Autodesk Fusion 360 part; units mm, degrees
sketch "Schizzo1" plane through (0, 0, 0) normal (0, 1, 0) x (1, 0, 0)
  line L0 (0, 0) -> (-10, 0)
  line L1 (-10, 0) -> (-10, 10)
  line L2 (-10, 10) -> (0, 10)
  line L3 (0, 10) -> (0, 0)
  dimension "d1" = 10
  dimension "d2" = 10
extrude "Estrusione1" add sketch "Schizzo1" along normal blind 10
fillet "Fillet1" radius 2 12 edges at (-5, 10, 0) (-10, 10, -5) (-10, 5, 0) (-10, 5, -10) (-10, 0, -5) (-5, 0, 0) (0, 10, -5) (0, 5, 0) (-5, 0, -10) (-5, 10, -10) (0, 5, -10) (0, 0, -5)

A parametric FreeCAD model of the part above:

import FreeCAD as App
import Part
import Sketcher
from FreeCAD import Vector


def add_polygon(sketch, points):
    """Adds a closed chain of lines whose ends are joined by coincident constraints."""
    first, n = sketch.GeometryCount, len(points)
    for a, b in zip(points, points[1:] + points[:1]):
        sketch.addGeometry(Part.LineSegment(App.Vector(*a, 0), App.Vector(*b, 0)), False)
    for i in range(n):
        sketch.addConstraint(Sketcher.Constraint("Coincident", first + i, 2, first + (i + 1) % n, 1))

doc = App.newDocument("Part")
params = doc.addObject("Spreadsheet::Sheet", "Params")
for row, (alias, value) in enumerate([
    ("sketch1_width", "10 mm"),
    ("pad1_length", "10 mm"),
    ("fillet_radius", "2 mm"),
], start=1):
    params.set(f"A{row}", alias)
    params.set(f"B{row}", "=" + value)
    params.setAlias(f"B{row}", alias)

body = doc.addObject("PartDesign::Body", "Body")

sketch1 = doc.addObject("Sketcher::SketchObject", "Sketch")
body.addObject(sketch1)
sketch1.AttachmentSupport = (doc.XZ_Plane, [""])
sketch1.MapMode = "FlatFace"
add_polygon(sketch1, [(-10, 0), (0, 0), (0, -10), (-10, -10)])
sketch1.addConstraint([
    Sketcher.Constraint("Horizontal", 0),
    Sketcher.Constraint("Vertical", 1),
    Sketcher.Constraint("Horizontal", 2),
    Sketcher.Constraint("Vertical", 3),
    Sketcher.Constraint("Coincident", 0, 2, -1, 1),
    Sketcher.Constraint("Equal", 2, 1),
    Sketcher.Constraint("DistanceX", 0, 1, 0, 2, 10.0),
])
sketch1.setExpression("Constraints[10]", "Params.sketch1_width")
pad1 = doc.addObject("PartDesign::Pad", "Pad")
body.addObject(pad1)
pad1.Profile = sketch1
pad1.setExpression("Length", "Params.pad1_length")
pad1.Reversed = True
doc.recompute()

fillet = doc.addObject("PartDesign::Fillet", "Fillet")
body.addObject(fillet)
fillet.Base = (pad1, ["Edge1"])
fillet.UseAllEdges = True
fillet.setExpression("Radius", "Params.fillet_radius")

doc.recompute()
